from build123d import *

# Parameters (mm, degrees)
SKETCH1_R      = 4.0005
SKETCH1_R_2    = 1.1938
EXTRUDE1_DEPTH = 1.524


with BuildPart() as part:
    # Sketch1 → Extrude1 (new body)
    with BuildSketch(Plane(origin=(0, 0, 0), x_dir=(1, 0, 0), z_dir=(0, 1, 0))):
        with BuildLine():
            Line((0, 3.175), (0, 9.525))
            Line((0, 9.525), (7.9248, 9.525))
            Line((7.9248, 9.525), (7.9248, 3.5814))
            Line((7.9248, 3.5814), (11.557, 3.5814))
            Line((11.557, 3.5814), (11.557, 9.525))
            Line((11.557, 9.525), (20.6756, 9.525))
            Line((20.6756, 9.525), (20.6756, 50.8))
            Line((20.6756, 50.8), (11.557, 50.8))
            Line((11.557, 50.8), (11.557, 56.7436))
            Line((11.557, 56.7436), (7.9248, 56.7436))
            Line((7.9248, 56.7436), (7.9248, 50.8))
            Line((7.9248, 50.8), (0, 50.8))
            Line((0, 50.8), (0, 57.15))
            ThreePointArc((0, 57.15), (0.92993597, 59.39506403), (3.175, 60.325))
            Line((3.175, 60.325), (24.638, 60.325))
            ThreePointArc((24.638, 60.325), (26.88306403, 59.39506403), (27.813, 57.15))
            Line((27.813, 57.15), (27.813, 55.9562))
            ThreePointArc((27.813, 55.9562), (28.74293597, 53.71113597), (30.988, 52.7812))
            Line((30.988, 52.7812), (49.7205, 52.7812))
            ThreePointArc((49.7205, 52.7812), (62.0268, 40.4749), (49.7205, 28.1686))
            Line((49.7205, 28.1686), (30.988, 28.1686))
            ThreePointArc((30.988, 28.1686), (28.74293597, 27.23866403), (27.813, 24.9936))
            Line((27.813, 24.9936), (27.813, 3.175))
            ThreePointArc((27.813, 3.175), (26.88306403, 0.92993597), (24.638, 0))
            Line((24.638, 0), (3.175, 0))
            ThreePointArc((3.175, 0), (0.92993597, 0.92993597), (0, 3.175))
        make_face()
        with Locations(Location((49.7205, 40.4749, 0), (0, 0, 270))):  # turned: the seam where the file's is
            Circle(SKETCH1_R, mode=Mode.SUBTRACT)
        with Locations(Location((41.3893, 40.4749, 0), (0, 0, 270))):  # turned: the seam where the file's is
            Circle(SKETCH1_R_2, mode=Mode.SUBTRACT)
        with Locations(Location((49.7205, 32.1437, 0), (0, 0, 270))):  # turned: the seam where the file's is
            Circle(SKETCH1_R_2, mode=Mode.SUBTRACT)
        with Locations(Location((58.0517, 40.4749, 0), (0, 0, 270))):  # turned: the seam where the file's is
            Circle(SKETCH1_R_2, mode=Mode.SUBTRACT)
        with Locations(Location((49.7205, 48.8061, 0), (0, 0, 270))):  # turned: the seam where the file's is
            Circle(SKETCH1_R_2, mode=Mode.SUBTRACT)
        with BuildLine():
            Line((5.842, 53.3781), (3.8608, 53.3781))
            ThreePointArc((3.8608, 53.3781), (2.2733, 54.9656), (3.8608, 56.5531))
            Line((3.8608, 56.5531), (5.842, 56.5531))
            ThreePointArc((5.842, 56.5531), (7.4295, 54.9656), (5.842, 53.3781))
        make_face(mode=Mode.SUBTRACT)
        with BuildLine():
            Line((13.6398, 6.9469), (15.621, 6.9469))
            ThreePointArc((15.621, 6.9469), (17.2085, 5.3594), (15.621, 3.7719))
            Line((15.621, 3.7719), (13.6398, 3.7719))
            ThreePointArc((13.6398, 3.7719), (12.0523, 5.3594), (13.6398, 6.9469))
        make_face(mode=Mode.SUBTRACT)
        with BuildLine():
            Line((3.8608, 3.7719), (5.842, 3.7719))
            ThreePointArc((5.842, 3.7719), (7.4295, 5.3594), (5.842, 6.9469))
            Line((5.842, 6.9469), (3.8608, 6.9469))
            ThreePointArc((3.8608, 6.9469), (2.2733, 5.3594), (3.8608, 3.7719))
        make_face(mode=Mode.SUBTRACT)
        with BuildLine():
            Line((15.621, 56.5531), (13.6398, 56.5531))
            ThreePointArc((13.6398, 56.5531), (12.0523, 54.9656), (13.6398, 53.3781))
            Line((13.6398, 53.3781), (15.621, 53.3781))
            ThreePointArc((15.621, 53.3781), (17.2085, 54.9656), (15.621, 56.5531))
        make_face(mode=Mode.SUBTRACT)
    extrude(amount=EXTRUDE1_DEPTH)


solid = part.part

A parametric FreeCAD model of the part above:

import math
import FreeCAD as App
import Part
import Sketcher
Q = App.Units.Quantity

doc = App.newDocument("Part")
body = doc.addObject("PartDesign::Body", "Body")

# Sketch on XZ plane
sketch1 = body.newObject("Sketcher::SketchObject", "Sketch")
sketch1.AttachmentSupport = (doc.getObject("XZ_Plane"), [""])
sketch1.MapMode = "FlatFace"
sketch1.addGeometry([
    Part.LineSegment(App.Vector(0, -9.5, 0), App.Vector(0, -3.2, 0)),  # 0
    Part.ArcOfCircle(Part.Circle(App.Vector(3.2, -3.2, 0), App.Vector(0, 0, 1), 3.2), math.radians(90), math.radians(180)),  # 1
    Part.LineSegment(App.Vector(3.2, 0, 0), App.Vector(24.6, 0, 0)),  # 2
    Part.ArcOfCircle(Part.Circle(App.Vector(24.6, -3.2, 0), App.Vector(0, 0, 1), 3.2), math.radians(0), math.radians(90)),  # 3
    Part.LineSegment(App.Vector(27.8, -3.2, 0), App.Vector(27.8, -25, 0)),  # 4
    Part.ArcOfCircle(Part.Circle(App.Vector(31, -25, 0), App.Vector(0, 0, 1), 3.2), math.radians(-180), math.radians(-90)),  # 5
    Part.LineSegment(App.Vector(31, -28.2, 0), App.Vector(49.7, -28.2, 0)),  # 6
    Part.ArcOfCircle(Part.Circle(App.Vector(49.7, -40.5, 0), App.Vector(0, 0, 1), 12.3), math.radians(-90), math.radians(90)),  # 7
    Part.LineSegment(App.Vector(49.7, -52.8, 0), App.Vector(31, -52.8, 0)),  # 8
    Part.ArcOfCircle(Part.Circle(App.Vector(31, -56, 0), App.Vector(0, 0, 1), 3.2), math.radians(90), math.radians(180)),  # 9
    Part.LineSegment(App.Vector(27.8, -56, 0), App.Vector(27.8, -57.1, 0)),  # 10
    Part.ArcOfCircle(Part.Circle(App.Vector(24.6, -57.1, 0), App.Vector(0, 0, 1), 3.2), math.radians(-90), math.radians(0)),  # 11
    Part.LineSegment(App.Vector(24.6, -60.3, 0), App.Vector(3.2, -60.3, 0)),  # 12
    Part.ArcOfCircle(Part.Circle(App.Vector(3.2, -57.1, 0), App.Vector(0, 0, 1), 3.2), math.radians(-180), math.radians(-90)),  # 13
    Part.LineSegment(App.Vector(0, -57.1, 0), App.Vector(0, -50.8, 0)),  # 14
    Part.LineSegment(App.Vector(0, -50.8, 0), App.Vector(7.9, -50.8, 0)),  # 15
    Part.LineSegment(App.Vector(7.9, -50.8, 0), App.Vector(7.9, -56.7, 0)),  # 16
    Part.LineSegment(App.Vector(7.9, -56.7, 0), App.Vector(11.6, -56.7, 0)),  # 17
    Part.LineSegment(App.Vector(11.6, -56.7, 0), App.Vector(11.6, -50.8, 0)),  # 18
    Part.LineSegment(App.Vector(11.6, -50.8, 0), App.Vector(20.7, -50.8, 0)),  # 19
    Part.LineSegment(App.Vector(20.7, -50.8, 0), App.Vector(20.7, -9.5, 0)),  # 20
    Part.LineSegment(App.Vector(20.7, -9.5, 0), App.Vector(11.6, -9.5, 0)),  # 21
    Part.LineSegment(App.Vector(11.6, -9.5, 0), App.Vector(11.6, -3.6, 0)),  # 22
    Part.LineSegment(App.Vector(11.6, -3.6, 0), App.Vector(7.9, -3.6, 0)),  # 23
    Part.LineSegment(App.Vector(7.9, -3.6, 0), App.Vector(7.9, -9.5, 0)),  # 24
    Part.LineSegment(App.Vector(7.9, -9.5, 0), App.Vector(0, -9.5, 0)),  # 25
    Part.LineSegment(App.Vector(13.6, -6.9, 0), App.Vector(15.6, -6.9, 0)),  # 26
    Part.ArcOfCircle(Part.Circle(App.Vector(15.6, -5.4, 0), App.Vector(0, 0, 1), 1.6), math.radians(-90), math.radians(90)),  # 27
    Part.LineSegment(App.Vector(15.6, -3.8, 0), App.Vector(13.6, -3.8, 0)),  # 28
    Part.ArcOfCircle(Part.Circle(App.Vector(13.6, -5.4, 0), App.Vector(0, 0, 1), 1.6), math.radians(90), math.radians(270)),  # 29
    Part.ArcOfCircle(Part.Circle(App.Vector(3.9, -5.4, 0), App.Vector(0, 0, 1), 1.6), math.radians(90), math.radians(270)),  # 30
    Part.LineSegment(App.Vector(3.9, -6.9, 0), App.Vector(5.8, -6.9, 0)),  # 31
    Part.ArcOfCircle(Part.Circle(App.Vector(5.8, -5.4, 0), App.Vector(0, 0, 1), 1.6), math.radians(-90), math.radians(90)),  # 32
    Part.LineSegment(App.Vector(5.8, -3.8, 0), App.Vector(3.9, -3.8, 0)),  # 33
    Part.Circle(App.Vector(49.7, -32.1, 0), App.Vector(0, 0, 1), 1.2),  # 34
    Part.Circle(App.Vector(58.1, -40.5, 0), App.Vector(0, 0, 1), 1.2),  # 35
    Part.Circle(App.Vector(49.7, -40.5, 0), App.Vector(0, 0, 1), 4),  # 36
    Part.Circle(App.Vector(41.4, -40.5, 0), App.Vector(0, 0, 1), 1.2),  # 37
    Part.Circle(App.Vector(49.7, -48.8, 0), App.Vector(0, 0, 1), 1.2),  # 38
    Part.ArcOfCircle(Part.Circle(App.Vector(15.6, -55, 0), App.Vector(0, 0, 1), 1.6), math.radians(-90), math.radians(90)),  # 39
    Part.LineSegment(App.Vector(15.6, -53.4, 0), App.Vector(13.6, -53.4, 0)),  # 40
    Part.ArcOfCircle(Part.Circle(App.Vector(13.6, -55, 0), App.Vector(0, 0, 1), 1.6), math.radians(90), math.radians(270)),  # 41
    Part.LineSegment(App.Vector(13.6, -56.6, 0), App.Vector(15.6, -56.6, 0)),  # 42
    Part.LineSegment(App.Vector(5.8, -53.4, 0), App.Vector(3.9, -53.4, 0)),  # 43
    Part.ArcOfCircle(Part.Circle(App.Vector(3.9, -55, 0), App.Vector(0, 0, 1), 1.6), math.radians(90), math.radians(270)),  # 44
    Part.LineSegment(App.Vector(3.9, -56.6, 0), App.Vector(5.8, -56.6, 0)),  # 45
    Part.ArcOfCircle(Part.Circle(App.Vector(5.8, -55, 0), App.Vector(0, 0, 1), 1.6), math.radians(-90), math.radians(90)),  # 46
], False)
sketch1.addConstraint([
    Sketcher.Constraint("Tangent", 0, 2, 1, 2),
    Sketcher.Constraint("Tangent", 1, 1, 2, 1),
    Sketcher.Constraint("Tangent", 2, 2, 3, 2),
    Sketcher.Constraint("Tangent", 3, 1, 4, 1),
    Sketcher.Constraint("Tangent", 4, 2, 5, 1),
    Sketcher.Constraint("Tangent", 5, 2, 6, 1),
    Sketcher.Constraint("Tangent", 6, 2, 7, 2),
    Sketcher.Constraint("Tangent", 7, 1, 8, 1),
    Sketcher.Constraint("Tangent", 8, 2, 9, 1),
    Sketcher.Constraint("Tangent", 9, 2, 10, 1),
    Sketcher.Constraint("Tangent", 10, 2, 11, 2),
    Sketcher.Constraint("Tangent", 11, 1, 12, 1),
    Sketcher.Constraint("Tangent", 12, 2, 13, 2),
    Sketcher.Constraint("Tangent", 13, 1, 14, 1),
    Sketcher.Constraint("Coincident", 14, 2, 15, 1),
    Sketcher.Constraint("Coincident", 15, 2, 16, 1),
    Sketcher.Constraint("Coincident", 16, 2, 17, 1),
    Sketcher.Constraint("Coincident", 17, 2, 18, 1),
    Sketcher.Constraint("Coincident", 18, 2, 19, 1),
    Sketcher.Constraint("Coincident", 19, 2, 20, 1),
    Sketcher.Constraint("Coincident", 20, 2, 21, 1),
    Sketcher.Constraint("Coincident", 21, 2, 22, 1),
    Sketcher.Constraint("Coincident", 22, 2, 23, 1),
    Sketcher.Constraint("Coincident", 23, 2, 24, 1),
    Sketcher.Constraint("Coincident", 24, 2, 25, 1),
    Sketcher.Constraint("Coincident", 25, 2, 0, 1),
    Sketcher.Constraint("Tangent", 26, 2, 27, 1),
    Sketcher.Constraint("Tangent", 27, 2, 28, 1),
    Sketcher.Constraint("Tangent", 28, 2, 29, 1),
    Sketcher.Constraint("Tangent", 29, 2, 26, 1),
    Sketcher.Constraint("Tangent", 30, 2, 31, 1),
    Sketcher.Constraint("Tangent", 31, 2, 32, 1),
    Sketcher.Constraint("Tangent", 32, 2, 33, 1),
    Sketcher.Constraint("Tangent", 33, 2, 30, 1),
    Sketcher.Constraint("Tangent", 39, 2, 40, 1),
    Sketcher.Constraint("Tangent", 40, 2, 41, 1),
    Sketcher.Constraint("Tangent", 41, 2, 42, 1),
    Sketcher.Constraint("Tangent", 42, 2, 39, 1),
    Sketcher.Constraint("Tangent", 43, 2, 44, 1),
    Sketcher.Constraint("Tangent", 44, 2, 45, 1),
    Sketcher.Constraint("Tangent", 45, 2, 46, 1),
    Sketcher.Constraint("Tangent", 46, 2, 43, 1),
    Sketcher.Constraint("Vertical", 0),
    Sketcher.Constraint("Horizontal", 2),
    Sketcher.Constraint("Vertical", 4),
    Sketcher.Constraint("Horizontal", 6),
    Sketcher.Constraint("Horizontal", 8),
    Sketcher.Constraint("Vertical", 10),
    Sketcher.Constraint("Horizontal", 12),
    Sketcher.Constraint("Vertical", 14),
    Sketcher.Constraint("Horizontal", 15),
    Sketcher.Constraint("Vertical", 16),
    Sketcher.Constraint("Horizontal", 17),
    Sketcher.Constraint("Vertical", 18),
    Sketcher.Constraint("Horizontal", 19),
    Sketcher.Constraint("Vertical", 20),
    Sketcher.Constraint("Horizontal", 21),
    Sketcher.Constraint("Vertical", 22),
    Sketcher.Constraint("Horizontal", 23),
    Sketcher.Constraint("Vertical", 24),
    Sketcher.Constraint("Horizontal", 25),
    Sketcher.Constraint("Horizontal", 26),
    Sketcher.Constraint("Horizontal", 28),
    Sketcher.Constraint("Horizontal", 31),
    Sketcher.Constraint("Horizontal", 33),
    Sketcher.Constraint("Horizontal", 40),
    Sketcher.Constraint("Horizontal", 42),
    Sketcher.Constraint("Horizontal", 43),
    Sketcher.Constraint("Horizontal", 45),
    Sketcher.Constraint("Coincident", 36, 3, 7, 3),
    Sketcher.Constraint("Equal", 1, 3),
    Sketcher.Constraint("Equal", 3, 5),
    Sketcher.Constraint("Equal", 5, 9),
    Sketcher.Constraint("Equal", 9, 11),
    Sketcher.Constraint("Equal", 11, 13),
    Sketcher.Constraint("Equal", 29, 30),
    Sketcher.Constraint("Equal", 34, 35),
    Sketcher.Constraint("Equal", 35, 37),
    Sketcher.Constraint("Equal", 37, 38),
    Sketcher.Constraint("Equal", 32, 39),
    Sketcher.Constraint("Equal", 41, 44),
    Sketcher.Constraint("PointOnObject", 0, 2, -2),
    Sketcher.Constraint("PointOnObject", 1, 1, -1),
    Sketcher.Constraint("PointOnObject", 13, 1, -2),
    Sketcher.Constraint("Horizontal", 29, 3, 30, 3),
    Sketcher.Constraint("Horizontal", 7, 3, 35, 3),
    Sketcher.Constraint("Horizontal", 36, 3, 37, 3),
    Sketcher.Constraint("Horizontal", 41, 3, 44, 3),
    Sketcher.Constraint("Horizontal", 15, 2, 18, 2),
    Sketcher.Constraint("Horizontal", 21, 2, 24, 2),
    Sketcher.Constraint("Vertical", 5, 3, 9, 3),
    Sketcher.Constraint("Vertical", 7, 3, 34, 3),
    Sketcher.Constraint("Vertical", 36, 3, 38, 3),
    Sketcher.Constraint("Vertical", 27, 3, 39, 3),
    Sketcher.Constraint("Vertical", 29, 3, 41, 3),
    Sketcher.Constraint("Vertical", 30, 3, 44, 3),
    Sketcher.Constraint("Vertical", 32, 3, 46, 3),
    Sketcher.Constraint("Vertical", 18, 2, 21, 2),
    Sketcher.Constraint("Vertical", 16, 2, 23, 2),
    Sketcher.Constraint("Equal", 28, 31),
    Sketcher.Constraint("Equal", 0, 14),
    Sketcher.Constraint("Equal", 18, 22),
    Sketcher.Constraint("Diameter", 34, Q("0.094 in")),
    Sketcher.Constraint("Diameter", 36, Q("0.315 in")),
    Sketcher.Constraint("DistanceY", 14, 2, -1, 1, Q("2 in")),
    Sketcher.Constraint("Radius", 1, Q("0.125 in")),
    Sketcher.Constraint("Radius", 27, Q("0.0625 in")),
    Sketcher.Constraint("DistanceY", 0, 1, 0, 2, Q("0.25 in")),
    Sketcher.Constraint("Radius", 7, Q("0.4845 in")),
    Sketcher.Constraint("DistanceX", 2, 1, 2, 2, Q("0.845 in")),
    Sketcher.Constraint("DistanceX", 15, 1, 15, 2, Q("0.312 in")),
    Sketcher.Constraint("DistanceX", 17, 1, 17, 2, Q("0.143 in")),
    Sketcher.Constraint("DistanceX", 19, 1, 19, 2, Q("0.359 in")),
    Sketcher.Constraint("DistanceX", 26, 1, 26, 2, Q("0.078 in")),
    Sketcher.Constraint("DistanceY", 4, 2, 4, 1, Q("0.859 in")),
    Sketcher.Constraint("DistanceY", 16, 2, 16, 1, Q("0.234 in")),
    Sketcher.Constraint("DistanceX", -1, 1, 32, 3, Q("0.23 in")),
    Sketcher.Constraint("DistanceX", 6, 1, 6, 2, Q("0.7375 in")),
    Sketcher.Constraint("DistanceX", -1, 1, 27, 3, Q("0.615 in")),
    Sketcher.Constraint("DistanceY", 27, 3, -1, 1, Q("0.211 in")),
    Sketcher.Constraint("DistanceY", 39, 3, -1, 1, Q("2.164 in")),
    Sketcher.Constraint("DistanceY", 34, 3, -1, 1, Q("1.2655 in")),
    Sketcher.Constraint("DistanceX", -1, 1, 35, 3, Q("2.2855 in")),
    Sketcher.Constraint("DistanceX", -1, 1, 37, 3, Q("1.6295 in")),
    Sketcher.Constraint("DistanceY", 38, 3, -1, 1, Q("1.9215 in")),
])
pad1 = body.newObject("PartDesign::Pad", "Pad")
pad1.Profile = sketch1
pad1.Length = Q("0.06 in")
pad1.Reversed = True

doc.recompute()
